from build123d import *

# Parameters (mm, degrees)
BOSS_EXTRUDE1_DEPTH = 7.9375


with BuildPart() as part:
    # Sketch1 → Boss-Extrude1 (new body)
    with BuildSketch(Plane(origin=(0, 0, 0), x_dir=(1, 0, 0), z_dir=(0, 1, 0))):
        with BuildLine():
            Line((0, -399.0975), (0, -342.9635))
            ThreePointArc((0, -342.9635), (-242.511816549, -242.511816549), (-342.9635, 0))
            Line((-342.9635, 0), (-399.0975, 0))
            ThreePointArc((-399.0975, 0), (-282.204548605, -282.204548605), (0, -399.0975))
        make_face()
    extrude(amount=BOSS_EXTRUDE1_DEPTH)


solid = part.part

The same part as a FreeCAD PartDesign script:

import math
import FreeCAD as App
import Part
import Sketcher

V = App.Vector
Q = App.Units.Quantity

doc = App.newDocument("Part")
body = doc.addObject("PartDesign::Body", "Body")

sketch1 = body.newObject("Sketcher::SketchObject", "Sketch")
sketch1.AttachmentSupport = (doc.getObject("XZ_Plane"), [""])
sketch1.MapMode = "FlatFace"
sketch1.addGeometry([
    Part.LineSegment(V(0, 399, 0), V(0, 343, 0)),
    Part.ArcOfCircle(Part.Circle(V(0, 0, 0), V(0, 0, 1), 343), math.radians(90), math.radians(180)),
    Part.LineSegment(V(-343, 0, 0), V(-399, 0, 0)),
    Part.ArcOfCircle(Part.Circle(V(0, 0, 0), V(0, 0, 1), 399), math.radians(90), math.radians(180)),
], False)
sketch1.addConstraint([
    Sketcher.Constraint("Coincident", 0, 2, 1, 1),
    Sketcher.Constraint("Coincident", 1, 2, 2, 1),
    Sketcher.Constraint("Coincident", 2, 2, 3, 2),
    Sketcher.Constraint("Coincident", 3, 1, 0, 1),
    Sketcher.Constraint("Vertical", 0),
    Sketcher.Constraint("Horizontal", 2),
    Sketcher.Constraint("Coincident", 1, 3, -1, 1),
    Sketcher.Constraint("Coincident", 3, 3, -1, 1),
    Sketcher.Constraint("PointOnObject", 0, 2, -2),
    Sketcher.Constraint("PointOnObject", 1, 2, -1),
    Sketcher.Constraint("DistanceX", 2, 2, 2, 1, Q("2.21 in")),
    Sketcher.Constraint("Radius", 1, Q("13.5025 in")),
])
pad1 = body.newObject("PartDesign::Pad", "Pad")
pad1.Profile = sketch1
pad1.Length = Q("0.3125 in")
pad1.Reversed = True

doc.recompute()
